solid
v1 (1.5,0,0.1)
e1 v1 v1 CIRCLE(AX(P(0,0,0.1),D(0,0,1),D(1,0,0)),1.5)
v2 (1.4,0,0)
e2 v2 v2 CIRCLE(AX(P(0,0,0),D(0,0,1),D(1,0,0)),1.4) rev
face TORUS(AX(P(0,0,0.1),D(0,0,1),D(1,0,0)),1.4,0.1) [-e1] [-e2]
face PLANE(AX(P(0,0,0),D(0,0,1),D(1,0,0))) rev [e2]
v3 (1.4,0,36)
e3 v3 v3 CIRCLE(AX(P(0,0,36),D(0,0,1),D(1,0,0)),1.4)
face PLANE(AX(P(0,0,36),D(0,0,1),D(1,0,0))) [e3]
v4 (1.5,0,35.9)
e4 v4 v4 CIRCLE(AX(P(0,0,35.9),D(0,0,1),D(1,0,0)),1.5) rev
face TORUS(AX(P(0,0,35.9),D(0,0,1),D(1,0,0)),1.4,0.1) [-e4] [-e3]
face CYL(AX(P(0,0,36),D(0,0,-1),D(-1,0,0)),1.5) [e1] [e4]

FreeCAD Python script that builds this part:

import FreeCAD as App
import Part
import Sketcher

V = App.Vector


def edges_at(feature, points):
    """Names of the edges that pass closest to the given points."""
    edges = feature.Shape.Edges
    near = lambda p: min(range(len(edges)), key=lambda i: edges[i].distToShape(Part.Vertex(*p))[0])
    return sorted({f"Edge{near(p) + 1}" for p in points})

doc = App.newDocument("Part")
body = doc.addObject("PartDesign::Body", "Body")

sketch1 = body.newObject("Sketcher::SketchObject", "Sketch")
sketch1.AttachmentSupport = (doc.getObject("XY_Plane"), [""])
sketch1.MapMode = "FlatFace"
sketch1.addGeometry(Part.Circle(V(0, 0, 0), V(0, 0, 1), 1.5), False)
sketch1.addConstraint([
    Sketcher.Constraint("Coincident", 0, 3, -1, 1),
    Sketcher.Constraint("Diameter", 0, 3.0),
])
pad1 = body.newObject("PartDesign::Pad", "Pad")
pad1.Profile = sketch1
pad1.Length = 36
doc.recompute()

fillet = body.newObject("PartDesign::Fillet", "Fillet")
fillet.Base = (pad1, edges_at(pad1, [(-1.5, 0, 0), (-1.5, 0, 36)]))
fillet.Radius = 0.1

doc.recompute()
